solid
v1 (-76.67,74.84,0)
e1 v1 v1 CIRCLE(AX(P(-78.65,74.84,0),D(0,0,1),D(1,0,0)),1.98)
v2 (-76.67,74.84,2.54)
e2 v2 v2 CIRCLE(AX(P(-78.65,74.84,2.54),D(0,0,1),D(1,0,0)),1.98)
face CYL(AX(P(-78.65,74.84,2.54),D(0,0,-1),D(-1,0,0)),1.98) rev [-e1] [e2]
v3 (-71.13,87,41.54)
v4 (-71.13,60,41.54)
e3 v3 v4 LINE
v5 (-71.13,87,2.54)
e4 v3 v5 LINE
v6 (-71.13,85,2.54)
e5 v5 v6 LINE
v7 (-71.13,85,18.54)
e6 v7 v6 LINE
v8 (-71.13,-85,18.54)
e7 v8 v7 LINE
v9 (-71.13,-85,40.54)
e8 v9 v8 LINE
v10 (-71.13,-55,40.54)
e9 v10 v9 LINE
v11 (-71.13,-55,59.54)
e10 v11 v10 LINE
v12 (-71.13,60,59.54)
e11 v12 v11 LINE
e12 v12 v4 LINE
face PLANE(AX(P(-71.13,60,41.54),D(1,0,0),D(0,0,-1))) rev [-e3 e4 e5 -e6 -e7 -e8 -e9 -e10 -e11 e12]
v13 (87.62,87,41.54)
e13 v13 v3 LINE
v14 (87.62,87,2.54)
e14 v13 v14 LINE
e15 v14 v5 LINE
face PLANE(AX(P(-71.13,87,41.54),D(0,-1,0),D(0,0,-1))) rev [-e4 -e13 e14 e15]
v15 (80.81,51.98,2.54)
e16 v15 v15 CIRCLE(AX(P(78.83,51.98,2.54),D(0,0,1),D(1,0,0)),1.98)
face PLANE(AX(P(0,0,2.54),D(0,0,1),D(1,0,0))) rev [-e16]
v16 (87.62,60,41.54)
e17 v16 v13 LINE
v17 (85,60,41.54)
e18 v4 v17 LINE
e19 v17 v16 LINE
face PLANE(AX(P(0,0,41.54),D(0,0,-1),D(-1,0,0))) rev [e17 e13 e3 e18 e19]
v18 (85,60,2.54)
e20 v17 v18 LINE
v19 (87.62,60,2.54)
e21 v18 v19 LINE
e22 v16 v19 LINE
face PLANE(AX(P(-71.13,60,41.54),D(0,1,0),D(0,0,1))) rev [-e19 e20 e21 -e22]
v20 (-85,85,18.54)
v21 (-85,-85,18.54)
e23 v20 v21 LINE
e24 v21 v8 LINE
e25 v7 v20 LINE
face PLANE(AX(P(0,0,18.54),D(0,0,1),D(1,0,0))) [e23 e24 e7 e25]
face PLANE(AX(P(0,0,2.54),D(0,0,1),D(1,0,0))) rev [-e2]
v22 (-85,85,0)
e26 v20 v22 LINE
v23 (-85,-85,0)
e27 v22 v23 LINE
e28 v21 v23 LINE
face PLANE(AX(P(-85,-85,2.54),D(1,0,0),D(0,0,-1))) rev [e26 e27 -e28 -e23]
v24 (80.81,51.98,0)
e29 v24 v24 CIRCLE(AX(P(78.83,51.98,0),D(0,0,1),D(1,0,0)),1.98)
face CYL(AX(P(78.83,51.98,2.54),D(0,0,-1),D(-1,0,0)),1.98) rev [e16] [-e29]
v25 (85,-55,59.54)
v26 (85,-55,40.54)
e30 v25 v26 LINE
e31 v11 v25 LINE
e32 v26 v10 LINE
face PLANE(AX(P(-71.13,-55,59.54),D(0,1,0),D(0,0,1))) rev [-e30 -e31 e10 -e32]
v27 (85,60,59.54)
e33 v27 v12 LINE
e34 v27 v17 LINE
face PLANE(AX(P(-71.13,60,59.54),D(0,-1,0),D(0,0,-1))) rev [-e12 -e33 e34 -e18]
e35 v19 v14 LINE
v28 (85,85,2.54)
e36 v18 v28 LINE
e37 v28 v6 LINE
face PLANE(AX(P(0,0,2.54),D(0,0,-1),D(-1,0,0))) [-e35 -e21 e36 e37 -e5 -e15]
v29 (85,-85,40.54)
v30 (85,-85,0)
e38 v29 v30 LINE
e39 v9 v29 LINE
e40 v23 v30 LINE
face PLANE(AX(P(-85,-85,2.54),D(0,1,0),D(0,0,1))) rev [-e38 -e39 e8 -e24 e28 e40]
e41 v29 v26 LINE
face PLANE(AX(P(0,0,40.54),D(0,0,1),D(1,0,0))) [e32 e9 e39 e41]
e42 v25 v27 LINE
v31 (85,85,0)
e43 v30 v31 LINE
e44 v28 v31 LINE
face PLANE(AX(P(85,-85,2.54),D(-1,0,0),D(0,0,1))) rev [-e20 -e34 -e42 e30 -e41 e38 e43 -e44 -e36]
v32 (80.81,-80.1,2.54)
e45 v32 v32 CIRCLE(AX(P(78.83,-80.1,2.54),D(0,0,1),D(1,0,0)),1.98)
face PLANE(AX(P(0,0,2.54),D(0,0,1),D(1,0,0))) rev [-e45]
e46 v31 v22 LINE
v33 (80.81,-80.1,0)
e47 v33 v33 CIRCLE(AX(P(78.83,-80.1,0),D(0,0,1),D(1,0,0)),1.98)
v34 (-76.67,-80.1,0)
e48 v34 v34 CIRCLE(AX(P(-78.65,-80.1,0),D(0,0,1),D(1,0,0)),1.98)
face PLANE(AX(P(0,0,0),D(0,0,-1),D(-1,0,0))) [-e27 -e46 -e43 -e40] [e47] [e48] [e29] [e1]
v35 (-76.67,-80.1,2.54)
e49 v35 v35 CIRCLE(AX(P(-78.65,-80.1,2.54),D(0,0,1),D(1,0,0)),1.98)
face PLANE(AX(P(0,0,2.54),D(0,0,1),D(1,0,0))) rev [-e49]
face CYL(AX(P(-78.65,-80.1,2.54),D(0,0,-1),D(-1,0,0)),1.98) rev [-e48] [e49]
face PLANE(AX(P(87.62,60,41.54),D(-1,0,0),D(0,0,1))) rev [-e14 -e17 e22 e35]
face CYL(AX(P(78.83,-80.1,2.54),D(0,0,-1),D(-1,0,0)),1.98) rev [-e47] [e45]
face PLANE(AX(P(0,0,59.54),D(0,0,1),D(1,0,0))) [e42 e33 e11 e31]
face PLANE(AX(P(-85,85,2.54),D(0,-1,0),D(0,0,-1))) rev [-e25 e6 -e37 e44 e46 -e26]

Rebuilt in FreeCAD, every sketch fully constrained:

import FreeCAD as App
import Part
import Sketcher
from FreeCAD import Vector
Q = App.Units.Quantity

doc = App.newDocument("Part")
params = doc.addObject("Spreadsheet::Sheet", "Params")
for row, (alias, value) in enumerate([
    ("sketch1_diameter", "3.96 mm"),
    ("sketch1_width", "170 mm"),
    ("pad1_length", "2.54 mm"),
    ("sketch2_height", "27 mm"),
    ("sketch2_width", "158.75 mm"),
    ("pad2_length", "39 mm"),
    ("sketch3_height", "170 mm"),
    ("sketch3_width", "13.87 mm"),
    ("pad3_length", "16 mm"),
    ("sketch4_height", "30 mm"),
    ("sketch4_width", "156.13 mm"),
    ("pad4_length", "38 mm"),
    ("sketch5_height", "115 mm"),
    ("sketch5_width", "156.13 mm"),
    ("pad5_length", "57 mm"),
], start=1):
    params.set(f"A{row}", alias)
    params.set(f"B{row}", "=" + value)
    params.setAlias(f"B{row}", alias)

body = doc.addObject("PartDesign::Body", "Body")

# Sketch on XY plane
sketch1 = body.newObject("Sketcher::SketchObject", "Sketch")
sketch1.AttachmentSupport = (doc.getObject("XY_Plane"), [""])
sketch1.MapMode = "FlatFace"
sketch1.addGeometry([
    Part.LineSegment(Vector(-85, 85, 0), Vector(-85, -85, 0)),  # 0
    Part.LineSegment(Vector(-85, -85, 0), Vector(85, -85, 0)),  # 1
    Part.LineSegment(Vector(85, -85, 0), Vector(85, 85, 0)),  # 2
    Part.LineSegment(Vector(85, 85, 0), Vector(-85, 85, 0)),  # 3
    Part.Circle(Vector(-78.7, -80.1, 0), Vector(0, 0, 1), 2),  # 4
    Part.Circle(Vector(78.8, -80.1, 0), Vector(0, 0, 1), 2),  # 5
    Part.Circle(Vector(-78.7, 74.8, 0), Vector(0, 0, 1), 2),  # 6
    Part.Circle(Vector(78.8, 52, 0), Vector(0, 0, 1), 2),  # 7
], False)
sketch1.addConstraint([
    Sketcher.Constraint("Coincident", 0, 2, 1, 1),
    Sketcher.Constraint("Coincident", 1, 2, 2, 1),
    Sketcher.Constraint("Coincident", 2, 2, 3, 1),
    Sketcher.Constraint("Coincident", 3, 2, 0, 1),
    Sketcher.Constraint("Vertical", 0),
    Sketcher.Constraint("Horizontal", 1),
    Sketcher.Constraint("Vertical", 2),
    Sketcher.Constraint("Horizontal", 3),
    Sketcher.Constraint("Equal", 4, 5),
    Sketcher.Constraint("Equal", 5, 6),
    Sketcher.Constraint("Equal", 6, 7),
    Sketcher.Constraint("Symmetric", 0, 2, 2, 2, -1, 1),
    Sketcher.Constraint("Horizontal", 4, 3, 5, 3),
    Sketcher.Constraint("Vertical", 4, 3, 6, 3),
    Sketcher.Constraint("Vertical", 5, 3, 7, 3),
    Sketcher.Constraint("Equal", 3, 0),
    Sketcher.Constraint("Diameter", 4, Q("3.96 mm")),
    Sketcher.Constraint("DistanceX", 1, 1, 1, 2, Q("170 mm")),
    Sketcher.Constraint("DistanceY", 4, 3, -1, 1, Q("80.1 mm")),
    Sketcher.Constraint("DistanceX", 4, 3, -1, 1, Q("78.65 mm")),
    Sketcher.Constraint("DistanceX", -1, 1, 5, 3, Q("78.83 mm")),
    Sketcher.Constraint("DistanceY", -1, 1, 6, 3, Q("74.84 mm")),
    Sketcher.Constraint("DistanceY", -1, 1, 7, 3, Q("51.98 mm")),
])
sketch1.setExpression("Constraints[16]", "Params.sketch1_diameter")
sketch1.setExpression("Constraints[17]", "Params.sketch1_width")
pad1 = body.newObject("PartDesign::Pad", "Pad")
pad1.Profile = sketch1
pad1.setExpression("Length", "Params.pad1_length")

# Sketch on XY plane
sketch2 = body.newObject("Sketcher::SketchObject", "Sketch001")
sketch2.AttachmentSupport = (doc.getObject("XY_Plane"), [""])
sketch2.MapMode = "FlatFace"
sketch2.AttachmentOffset = App.Placement(Vector(0, 0, 2.54), App.Rotation())
sketch2.addGeometry([
    Part.LineSegment(Vector(-71, 87, 0), Vector(-71, 60, 0)),
    Part.LineSegment(Vector(-71, 60, 0), Vector(88, 60, 0)),
    Part.LineSegment(Vector(88, 60, 0), Vector(88, 87, 0)),
    Part.LineSegment(Vector(88, 87, 0), Vector(-71, 87, 0)),
], False)
sketch2.addConstraint([
    Sketcher.Constraint("Coincident", 0, 2, 1, 1),
    Sketcher.Constraint("Coincident", 1, 2, 2, 1),
    Sketcher.Constraint("Coincident", 2, 2, 3, 1),
    Sketcher.Constraint("Coincident", 3, 2, 0, 1),
    Sketcher.Constraint("Vertical", 0),
    Sketcher.Constraint("Horizontal", 1),
    Sketcher.Constraint("Vertical", 2),
    Sketcher.Constraint("Horizontal", 3),
    Sketcher.Constraint("DistanceY", 0, 2, 0, 1, Q("27 mm")),
    Sketcher.Constraint("DistanceY", -1, 1, 0, 2, Q("60 mm")),
    Sketcher.Constraint("DistanceX", 1, 1, 1, 2, Q("158.75 mm")),
    Sketcher.Constraint("DistanceX", 0, 2, -1, 1, Q("71.13 mm")),
])
sketch2.setExpression("Constraints[8]", "Params.sketch2_height")
sketch2.setExpression("Constraints[10]", "Params.sketch2_width")
pad2 = body.newObject("PartDesign::Pad", "Pad001")
pad2.Profile = sketch2
pad2.setExpression("Length", "Params.pad2_length")

# Sketch on XY plane
sketch3 = body.newObject("Sketcher::SketchObject", "Sketch002")
sketch3.AttachmentSupport = (doc.getObject("XY_Plane"), [""])
sketch3.MapMode = "FlatFace"
sketch3.AttachmentOffset = App.Placement(Vector(0, 0, 2.54), App.Rotation())
sketch3.addGeometry([
    Part.LineSegment(Vector(-85, 85, 0), Vector(-85, -85, 0)),
    Part.LineSegment(Vector(-85, -85, 0), Vector(-71, -85, 0)),
    Part.LineSegment(Vector(-71, -85, 0), Vector(-71, 85, 0)),
    Part.LineSegment(Vector(-71, 85, 0), Vector(-85, 85, 0)),
], False)
sketch3.addConstraint([
    Sketcher.Constraint("Coincident", 0, 2, 1, 1),
    Sketcher.Constraint("Coincident", 1, 2, 2, 1),
    Sketcher.Constraint("Coincident", 2, 2, 3, 1),
    Sketcher.Constraint("Coincident", 3, 2, 0, 1),
    Sketcher.Constraint("Vertical", 0),
    Sketcher.Constraint("Horizontal", 1),
    Sketcher.Constraint("Vertical", 2),
    Sketcher.Constraint("Horizontal", 3),
    Sketcher.Constraint("DistanceY", 0, 2, 0, 1, Q("170 mm")),
    Sketcher.Constraint("DistanceX", 0, 2, -1, 1, Q("85 mm")),
    Sketcher.Constraint("DistanceY", 0, 2, -1, 1, Q("85 mm")),
    Sketcher.Constraint("DistanceX", 1, 1, 1, 2, Q("13.87 mm")),
])
sketch3.setExpression("Constraints[8]", "Params.sketch3_height")
sketch3.setExpression("Constraints[11]", "Params.sketch3_width")
pad3 = body.newObject("PartDesign::Pad", "Pad002")
pad3.Profile = sketch3
pad3.setExpression("Length", "Params.pad3_length")

# Sketch on XY plane
sketch4 = body.newObject("Sketcher::SketchObject", "Sketch003")
sketch4.AttachmentSupport = (doc.getObject("XY_Plane"), [""])
sketch4.MapMode = "FlatFace"
sketch4.AttachmentOffset = App.Placement(Vector(0, 0, 2.54), App.Rotation())
sketch4.addGeometry([
    Part.LineSegment(Vector(-71, -55, 0), Vector(-71, -85, 0)),
    Part.LineSegment(Vector(-71, -85, 0), Vector(85, -85, 0)),
    Part.LineSegment(Vector(85, -85, 0), Vector(85, -55, 0)),
    Part.LineSegment(Vector(85, -55, 0), Vector(-71, -55, 0)),
], False)
sketch4.addConstraint([
    Sketcher.Constraint("Coincident", 0, 2, 1, 1),
    Sketcher.Constraint("Coincident", 1, 2, 2, 1),
    Sketcher.Constraint("Coincident", 2, 2, 3, 1),
    Sketcher.Constraint("Coincident", 3, 2, 0, 1),
    Sketcher.Constraint("Vertical", 0),
    Sketcher.Constraint("Horizontal", 1),
    Sketcher.Constraint("Vertical", 2),
    Sketcher.Constraint("Horizontal", 3),
    Sketcher.Constraint("DistanceY", 0, 2, 0, 1, Q("30 mm")),
    Sketcher.Constraint("DistanceY", 0, 2, -1, 1, Q("85 mm")),
    Sketcher.Constraint("DistanceX", -1, 1, 1, 2, Q("85 mm")),
    Sketcher.Constraint("DistanceX", 1, 1, 1, 2, Q("156.13 mm")),
])
sketch4.setExpression("Constraints[8]", "Params.sketch4_height")
sketch4.setExpression("Constraints[11]", "Params.sketch4_width")
pad4 = body.newObject("PartDesign::Pad", "Pad003")
pad4.Profile = sketch4
pad4.setExpression("Length", "Params.pad4_length")

# Sketch on XY plane
sketch5 = body.newObject("Sketcher::SketchObject", "Sketch004")
sketch5.AttachmentSupport = (doc.getObject("XY_Plane"), [""])
sketch5.MapMode = "FlatFace"
sketch5.AttachmentOffset = App.Placement(Vector(0, 0, 2.54), App.Rotation())
sketch5.addGeometry([
    Part.LineSegment(Vector(-71, 60, 0), Vector(-71, -55, 0)),
    Part.LineSegment(Vector(-71, -55, 0), Vector(85, -55, 0)),
    Part.LineSegment(Vector(85, -55, 0), Vector(85, 60, 0)),
    Part.LineSegment(Vector(85, 60, 0), Vector(-71, 60, 0)),
], False)
sketch5.addConstraint([
    Sketcher.Constraint("Coincident", 0, 2, 1, 1),
    Sketcher.Constraint("Coincident", 1, 2, 2, 1),
    Sketcher.Constraint("Coincident", 2, 2, 3, 1),
    Sketcher.Constraint("Coincident", 3, 2, 0, 1),
    Sketcher.Constraint("Vertical", 0),
    Sketcher.Constraint("Horizontal", 1),
    Sketcher.Constraint("Vertical", 2),
    Sketcher.Constraint("Horizontal", 3),
    Sketcher.Constraint("DistanceY", 0, 2, 0, 1, Q("115 mm")),
    Sketcher.Constraint("DistanceY", 0, 2, -1, 1, Q("55 mm")),
    Sketcher.Constraint("DistanceX", -1, 1, 1, 2, Q("85 mm")),
    Sketcher.Constraint("DistanceX", 1, 1, 1, 2, Q("156.13 mm")),
])
sketch5.setExpression("Constraints[8]", "Params.sketch5_height")
sketch5.setExpression("Constraints[11]", "Params.sketch5_width")
pad5 = body.newObject("PartDesign::Pad", "Pad004")
pad5.Profile = sketch5
pad5.setExpression("Length", "Params.pad5_length")

doc.recompute()
